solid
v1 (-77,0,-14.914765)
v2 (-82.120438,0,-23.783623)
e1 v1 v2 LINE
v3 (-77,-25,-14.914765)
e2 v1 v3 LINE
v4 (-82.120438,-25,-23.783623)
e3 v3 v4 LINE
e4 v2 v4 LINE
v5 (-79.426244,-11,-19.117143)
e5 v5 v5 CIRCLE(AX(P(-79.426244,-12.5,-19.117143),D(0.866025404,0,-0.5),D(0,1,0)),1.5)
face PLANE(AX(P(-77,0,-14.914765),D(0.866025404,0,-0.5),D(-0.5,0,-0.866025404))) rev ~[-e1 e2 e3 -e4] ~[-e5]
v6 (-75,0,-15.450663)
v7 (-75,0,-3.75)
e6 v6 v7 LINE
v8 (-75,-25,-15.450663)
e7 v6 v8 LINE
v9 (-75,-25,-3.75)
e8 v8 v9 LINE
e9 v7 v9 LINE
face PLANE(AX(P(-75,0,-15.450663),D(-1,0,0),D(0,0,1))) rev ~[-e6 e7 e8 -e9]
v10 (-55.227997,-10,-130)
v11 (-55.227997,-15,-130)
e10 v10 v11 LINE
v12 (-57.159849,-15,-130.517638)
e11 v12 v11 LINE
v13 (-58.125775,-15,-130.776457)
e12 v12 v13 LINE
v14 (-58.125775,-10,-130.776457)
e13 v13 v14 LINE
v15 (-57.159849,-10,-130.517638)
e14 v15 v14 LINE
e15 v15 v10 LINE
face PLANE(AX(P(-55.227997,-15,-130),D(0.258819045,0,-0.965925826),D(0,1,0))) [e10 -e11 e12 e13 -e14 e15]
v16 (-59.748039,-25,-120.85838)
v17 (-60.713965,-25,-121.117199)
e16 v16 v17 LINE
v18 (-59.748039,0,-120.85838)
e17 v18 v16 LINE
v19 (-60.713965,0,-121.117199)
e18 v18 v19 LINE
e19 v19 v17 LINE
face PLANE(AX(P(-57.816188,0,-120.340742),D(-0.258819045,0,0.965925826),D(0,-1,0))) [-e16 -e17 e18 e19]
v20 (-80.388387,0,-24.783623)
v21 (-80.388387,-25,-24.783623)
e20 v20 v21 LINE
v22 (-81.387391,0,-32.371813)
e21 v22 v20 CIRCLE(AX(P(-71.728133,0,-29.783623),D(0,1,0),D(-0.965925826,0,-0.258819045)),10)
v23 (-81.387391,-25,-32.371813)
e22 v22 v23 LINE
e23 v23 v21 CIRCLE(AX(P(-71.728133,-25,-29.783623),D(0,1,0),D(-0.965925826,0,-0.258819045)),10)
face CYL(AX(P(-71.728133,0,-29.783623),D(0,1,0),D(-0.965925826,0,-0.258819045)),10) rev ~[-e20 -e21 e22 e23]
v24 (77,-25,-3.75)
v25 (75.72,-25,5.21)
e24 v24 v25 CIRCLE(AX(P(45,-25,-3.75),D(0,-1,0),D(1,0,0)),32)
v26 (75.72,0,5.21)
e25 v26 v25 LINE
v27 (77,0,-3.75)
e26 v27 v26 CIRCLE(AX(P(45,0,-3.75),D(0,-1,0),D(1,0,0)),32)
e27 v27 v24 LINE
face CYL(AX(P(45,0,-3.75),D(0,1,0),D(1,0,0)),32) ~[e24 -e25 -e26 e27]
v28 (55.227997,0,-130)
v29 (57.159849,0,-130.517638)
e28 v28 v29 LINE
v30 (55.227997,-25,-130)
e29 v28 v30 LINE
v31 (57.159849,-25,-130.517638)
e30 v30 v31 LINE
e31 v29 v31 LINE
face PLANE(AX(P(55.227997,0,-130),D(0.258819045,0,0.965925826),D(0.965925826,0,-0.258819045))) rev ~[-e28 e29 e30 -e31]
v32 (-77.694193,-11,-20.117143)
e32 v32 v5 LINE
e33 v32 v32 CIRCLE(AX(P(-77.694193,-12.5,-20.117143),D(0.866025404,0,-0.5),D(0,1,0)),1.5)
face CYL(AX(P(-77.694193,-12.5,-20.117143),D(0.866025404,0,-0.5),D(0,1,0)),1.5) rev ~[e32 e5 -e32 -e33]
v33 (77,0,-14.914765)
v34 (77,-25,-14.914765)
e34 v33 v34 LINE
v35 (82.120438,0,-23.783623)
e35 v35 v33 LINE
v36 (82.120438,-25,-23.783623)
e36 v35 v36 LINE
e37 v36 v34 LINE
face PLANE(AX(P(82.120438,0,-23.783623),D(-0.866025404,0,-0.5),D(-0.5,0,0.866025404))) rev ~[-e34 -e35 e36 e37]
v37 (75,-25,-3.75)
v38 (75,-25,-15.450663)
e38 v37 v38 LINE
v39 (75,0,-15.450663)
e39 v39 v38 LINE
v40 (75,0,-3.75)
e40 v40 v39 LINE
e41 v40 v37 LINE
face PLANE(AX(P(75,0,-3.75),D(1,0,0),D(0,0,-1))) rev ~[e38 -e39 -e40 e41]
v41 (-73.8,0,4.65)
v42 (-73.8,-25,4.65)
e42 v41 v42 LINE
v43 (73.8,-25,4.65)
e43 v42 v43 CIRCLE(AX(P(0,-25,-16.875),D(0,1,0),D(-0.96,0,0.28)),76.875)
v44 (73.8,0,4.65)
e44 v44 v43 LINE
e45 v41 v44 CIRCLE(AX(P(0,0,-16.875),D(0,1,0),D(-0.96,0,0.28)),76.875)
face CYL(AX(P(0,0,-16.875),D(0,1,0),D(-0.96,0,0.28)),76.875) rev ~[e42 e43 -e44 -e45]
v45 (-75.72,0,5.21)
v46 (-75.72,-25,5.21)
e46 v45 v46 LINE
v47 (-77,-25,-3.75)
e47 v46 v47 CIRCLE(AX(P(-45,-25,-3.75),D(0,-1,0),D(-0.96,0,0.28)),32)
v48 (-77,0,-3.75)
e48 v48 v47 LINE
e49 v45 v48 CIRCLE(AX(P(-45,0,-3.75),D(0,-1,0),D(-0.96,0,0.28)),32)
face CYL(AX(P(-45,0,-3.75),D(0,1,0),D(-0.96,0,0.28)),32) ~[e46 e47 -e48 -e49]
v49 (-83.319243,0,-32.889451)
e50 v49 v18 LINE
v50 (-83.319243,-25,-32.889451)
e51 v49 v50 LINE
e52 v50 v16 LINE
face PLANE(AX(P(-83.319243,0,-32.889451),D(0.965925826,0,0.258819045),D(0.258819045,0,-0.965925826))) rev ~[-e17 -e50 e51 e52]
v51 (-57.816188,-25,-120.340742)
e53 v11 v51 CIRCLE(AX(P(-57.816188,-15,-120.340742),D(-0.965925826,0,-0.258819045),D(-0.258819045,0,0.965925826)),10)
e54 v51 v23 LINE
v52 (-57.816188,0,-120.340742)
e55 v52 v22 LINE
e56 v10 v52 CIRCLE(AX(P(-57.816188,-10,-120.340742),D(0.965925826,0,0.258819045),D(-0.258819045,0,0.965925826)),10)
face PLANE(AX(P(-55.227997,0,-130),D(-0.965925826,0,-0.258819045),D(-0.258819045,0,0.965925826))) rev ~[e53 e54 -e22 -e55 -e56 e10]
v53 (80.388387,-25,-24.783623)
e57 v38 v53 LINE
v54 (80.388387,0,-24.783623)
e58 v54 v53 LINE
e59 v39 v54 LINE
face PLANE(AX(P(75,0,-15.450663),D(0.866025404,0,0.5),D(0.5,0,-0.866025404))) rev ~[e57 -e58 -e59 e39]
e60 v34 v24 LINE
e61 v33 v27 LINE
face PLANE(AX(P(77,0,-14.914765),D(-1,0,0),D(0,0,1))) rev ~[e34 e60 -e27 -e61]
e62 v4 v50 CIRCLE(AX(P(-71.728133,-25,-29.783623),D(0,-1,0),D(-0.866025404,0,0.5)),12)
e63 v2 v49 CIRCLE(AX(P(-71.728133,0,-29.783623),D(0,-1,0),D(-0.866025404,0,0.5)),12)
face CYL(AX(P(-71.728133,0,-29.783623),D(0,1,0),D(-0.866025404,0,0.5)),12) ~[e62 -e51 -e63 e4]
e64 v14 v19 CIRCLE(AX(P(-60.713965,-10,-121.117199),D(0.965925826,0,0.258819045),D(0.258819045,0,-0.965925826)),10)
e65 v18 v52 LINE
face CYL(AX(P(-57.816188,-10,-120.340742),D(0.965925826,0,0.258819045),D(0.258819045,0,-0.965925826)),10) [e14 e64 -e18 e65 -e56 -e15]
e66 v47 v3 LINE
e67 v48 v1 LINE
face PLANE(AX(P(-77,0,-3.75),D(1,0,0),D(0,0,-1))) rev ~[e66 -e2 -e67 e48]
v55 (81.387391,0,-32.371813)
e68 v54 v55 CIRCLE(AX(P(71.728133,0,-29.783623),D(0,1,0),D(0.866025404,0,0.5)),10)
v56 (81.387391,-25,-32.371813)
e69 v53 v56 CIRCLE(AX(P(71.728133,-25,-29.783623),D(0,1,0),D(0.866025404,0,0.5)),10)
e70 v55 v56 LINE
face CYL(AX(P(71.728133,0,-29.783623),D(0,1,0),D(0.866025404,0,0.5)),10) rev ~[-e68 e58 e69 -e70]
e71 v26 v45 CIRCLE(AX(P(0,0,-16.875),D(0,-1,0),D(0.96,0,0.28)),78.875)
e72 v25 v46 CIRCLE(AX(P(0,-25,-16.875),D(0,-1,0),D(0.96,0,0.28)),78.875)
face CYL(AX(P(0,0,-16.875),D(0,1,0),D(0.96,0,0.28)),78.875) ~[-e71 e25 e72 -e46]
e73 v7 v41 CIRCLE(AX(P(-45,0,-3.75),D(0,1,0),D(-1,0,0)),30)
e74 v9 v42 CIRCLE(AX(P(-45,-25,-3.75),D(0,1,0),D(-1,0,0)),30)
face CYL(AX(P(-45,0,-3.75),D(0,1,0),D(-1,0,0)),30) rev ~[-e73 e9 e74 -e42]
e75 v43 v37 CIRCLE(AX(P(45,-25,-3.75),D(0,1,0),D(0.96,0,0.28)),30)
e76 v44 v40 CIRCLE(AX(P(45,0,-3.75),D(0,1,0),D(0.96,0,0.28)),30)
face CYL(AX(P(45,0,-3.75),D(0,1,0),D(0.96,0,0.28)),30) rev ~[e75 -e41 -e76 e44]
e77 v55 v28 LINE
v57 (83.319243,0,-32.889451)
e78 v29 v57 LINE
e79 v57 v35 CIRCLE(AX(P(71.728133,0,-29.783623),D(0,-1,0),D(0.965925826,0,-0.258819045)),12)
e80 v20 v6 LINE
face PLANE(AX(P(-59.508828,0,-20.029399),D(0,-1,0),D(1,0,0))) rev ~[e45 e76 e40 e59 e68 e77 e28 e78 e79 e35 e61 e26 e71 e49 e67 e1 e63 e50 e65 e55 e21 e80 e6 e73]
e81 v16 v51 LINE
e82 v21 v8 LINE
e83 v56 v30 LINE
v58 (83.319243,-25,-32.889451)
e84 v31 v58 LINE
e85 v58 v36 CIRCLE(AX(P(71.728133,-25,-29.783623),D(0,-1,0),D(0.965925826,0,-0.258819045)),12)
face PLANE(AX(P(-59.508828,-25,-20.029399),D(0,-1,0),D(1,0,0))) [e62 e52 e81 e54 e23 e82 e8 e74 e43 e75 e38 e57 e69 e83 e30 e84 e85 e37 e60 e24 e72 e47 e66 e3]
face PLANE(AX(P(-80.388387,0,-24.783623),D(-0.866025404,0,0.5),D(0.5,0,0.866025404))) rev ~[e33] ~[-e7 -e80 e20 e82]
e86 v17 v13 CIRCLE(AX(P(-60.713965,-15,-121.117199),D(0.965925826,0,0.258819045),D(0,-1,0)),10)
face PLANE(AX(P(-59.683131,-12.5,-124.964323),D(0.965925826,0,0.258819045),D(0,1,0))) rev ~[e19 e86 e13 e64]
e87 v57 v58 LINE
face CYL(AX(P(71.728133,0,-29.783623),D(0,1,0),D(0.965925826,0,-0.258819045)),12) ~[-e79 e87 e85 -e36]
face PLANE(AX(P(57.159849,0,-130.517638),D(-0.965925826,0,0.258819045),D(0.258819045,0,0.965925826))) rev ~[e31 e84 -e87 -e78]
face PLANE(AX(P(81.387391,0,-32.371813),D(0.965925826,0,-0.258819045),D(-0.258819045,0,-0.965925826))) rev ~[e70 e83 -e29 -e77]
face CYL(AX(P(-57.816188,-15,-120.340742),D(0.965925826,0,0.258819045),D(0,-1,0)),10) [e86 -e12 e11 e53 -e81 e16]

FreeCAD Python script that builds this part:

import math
import FreeCAD as App
import Part
import Sketcher

V = App.Vector
Q = App.Units.Quantity


def edges_at(feature, points):
    """Names of the edges that pass closest to the given points."""
    edges = feature.Shape.Edges
    near = lambda p: min(range(len(edges)), key=lambda i: edges[i].distToShape(Part.Vertex(*p))[0])
    return sorted({f"Edge{near(p) + 1}" for p in points})

doc = App.newDocument("Part")
params = doc.addObject("Spreadsheet::Sheet", "Params")
for row, (alias, value) in enumerate([
    ("sketch1_radius", "30 mm"),
    ("sketch1_radius2", "10 mm"),
    ("sketch1_radius3", "12 mm"),
    ("sketch1_radius4", "32 mm"),
    ("pad1_length", "25 mm"),
    ("fillet_radius", "10 mm"),
    ("sketch2_diameter", "3 mm"),
    ("pocket1_length", "25 mm"),
    ("sketch3_radius", "10 mm"),
    ("sketch3_width", "25 mm"),
    ("pad2_length", "3 mm"),
], start=1):
    params.set(f"A{row}", alias)
    params.set(f"B{row}", "=" + value)
    params.setAlias(f"B{row}", alias)

body = doc.addObject("PartDesign::Body", "Body")

sketch1 = body.newObject("Sketcher::SketchObject", "Sketch")
sketch1.AttachmentSupport = (doc.getObject("XZ_Plane"), [""])
sketch1.MapMode = "FlatFace"
sketch1.addGeometry([
    Part.ArcOfCircle(Part.Circle(V(0, -16.9, 0), V(0, 0, 1), 76.9), math.radians(16), math.radians(164)),
    Part.ArcOfCircle(Part.Circle(V(45, -3.8, 0), V(0, 0, 1), 30), math.radians(0), math.radians(16.26)),
    Part.LineSegment(V(75, -3.8, 0), V(75, -15.5, 0)),
    Part.LineSegment(V(75, -15.5, 0), V(80.4, -24.8, 0)),
    Part.ArcOfCircle(Part.Circle(V(71.7, -29.8, 0), V(0, 0, 1), 10), math.radians(-15), math.radians(30)),
    Part.LineSegment(V(81.4, -32.4, 0), V(55.2, -130, 0)),
    Part.LineSegment(V(55.2, -130, 0), V(57.2, -130.5, 0)),
    Part.LineSegment(V(57.2, -130.5, 0), V(83.3, -32.9, 0)),
    Part.ArcOfCircle(Part.Circle(V(71.7, -29.8, 0), V(0, 0, 1), 12), math.radians(-15), math.radians(30)),
    Part.LineSegment(V(82.1, -23.8, 0), V(77, -14.9, 0)),
    Part.LineSegment(V(77, -14.9, 0), V(77, -3.8, 0)),
    Part.ArcOfCircle(Part.Circle(V(45, -3.7, 0), V(0, 0, 1), 32), math.radians(0), math.radians(16.26)),
    Part.ArcOfCircle(Part.Circle(V(0, -16.9, 0), V(0, 0, 1), 78.9), math.radians(16), math.radians(164)),
    Part.ArcOfCircle(Part.Circle(V(-45, -3.7, 0), V(0, 0, 1), 32), math.radians(163.74), math.radians(180)),
    Part.LineSegment(V(-77, -3.8, 0), V(-77, -14.9, 0)),
    Part.LineSegment(V(-77, -14.9, 0), V(-82.1, -23.8, 0)),
    Part.ArcOfCircle(Part.Circle(V(-71.7, -29.8, 0), V(0, 0, 1), 12), math.radians(150), math.radians(195)),
    Part.LineSegment(V(-83.3, -32.9, 0), V(-57.2, -130.5, 0)),
    Part.LineSegment(V(-57.2, -130.5, 0), V(-55.2, -130, 0)),
    Part.LineSegment(V(-55.2, -130, 0), V(-81.4, -32.4, 0)),
    Part.ArcOfCircle(Part.Circle(V(-71.7, -29.8, 0), V(0, 0, 1), 10), math.radians(150), math.radians(195)),
    Part.LineSegment(V(-80.4, -24.8, 0), V(-75, -15.5, 0)),
    Part.LineSegment(V(-75, -15.5, 0), V(-75, -3.8, 0)),
    Part.ArcOfCircle(Part.Circle(V(-45, -3.8, 0), V(0, 0, 1), 30), math.radians(163.74), math.radians(180)),
], False)
sketch1.addConstraint([
    Sketcher.Constraint("Tangent", 0, 1, 1, 2),
    Sketcher.Constraint("Tangent", 1, 1, 2, 1),
    Sketcher.Constraint("Coincident", 2, 2, 3, 1),
    Sketcher.Constraint("Tangent", 3, 2, 4, 2),
    Sketcher.Constraint("Tangent", 4, 1, 5, 1),
    Sketcher.Constraint("Coincident", 5, 2, 6, 1),
    Sketcher.Constraint("Coincident", 6, 2, 7, 1),
    Sketcher.Constraint("Tangent", 7, 2, 8, 1),
    Sketcher.Constraint("Tangent", 8, 2, 9, 1),
    Sketcher.Constraint("Coincident", 9, 2, 10, 1),
    Sketcher.Constraint("Tangent", 10, 2, 11, 1),
    Sketcher.Constraint("Tangent", 11, 2, 12, 1),
    Sketcher.Constraint("Tangent", 12, 2, 13, 1),
    Sketcher.Constraint("Tangent", 13, 2, 14, 1),
    Sketcher.Constraint("Coincident", 14, 2, 15, 1),
    Sketcher.Constraint("Tangent", 15, 2, 16, 1),
    Sketcher.Constraint("Tangent", 16, 2, 17, 1),
    Sketcher.Constraint("Coincident", 17, 2, 18, 1),
    Sketcher.Constraint("Coincident", 18, 2, 19, 1),
    Sketcher.Constraint("Tangent", 19, 2, 20, 2),
    Sketcher.Constraint("Tangent", 20, 1, 21, 1),
    Sketcher.Constraint("Coincident", 21, 2, 22, 1),
    Sketcher.Constraint("Tangent", 22, 2, 23, 2),
    Sketcher.Constraint("Tangent", 23, 1, 0, 2),
    Sketcher.Constraint("Vertical", 2),
    Sketcher.Constraint("Vertical", 10),
    Sketcher.Constraint("Vertical", 14),
    Sketcher.Constraint("Vertical", 22),
    Sketcher.Constraint("Coincident", 8, 3, 4, 3),
    Sketcher.Constraint("Coincident", 11, 3, 1, 3),
    Sketcher.Constraint("Coincident", 12, 3, 0, 3),
    Sketcher.Constraint("Coincident", 20, 3, 16, 3),
    Sketcher.Constraint("Coincident", 23, 3, 13, 3),
    Sketcher.Constraint("Equal", 11, 13),
    Sketcher.Constraint("Equal", 8, 16),
    Sketcher.Constraint("Equal", 4, 20),
    Sketcher.Constraint("Symmetric", 1, 3, 13, 3, -2),
    Sketcher.Constraint("Symmetric", 4, 3, 16, 3, -2),
    Sketcher.Constraint("Symmetric", 6, 2, 17, 2, -2),
    Sketcher.Constraint("Symmetric", 5, 2, 18, 2, -2),
    Sketcher.Constraint("Perpendicular", 5, 6),
    Sketcher.Constraint("Perpendicular", 6, 7),
    Sketcher.Constraint("Parallel", 3, 9),
    Sketcher.Constraint("Parallel", 15, 21),
    Sketcher.Constraint("Horizontal", 9, 2, 14, 2),
    Sketcher.Constraint("Radius", 1, Q("30 mm")),
    Sketcher.Constraint("Radius", 4, Q("10 mm")),
    Sketcher.Constraint("Radius", 8, Q("12 mm")),
    Sketcher.Constraint("Radius", 11, Q("32 mm")),
    Sketcher.Constraint("Angle", 3, Q("-60 deg")),
    Sketcher.Constraint("Angle", 5, Q("-105 deg")),
    Sketcher.Constraint("DistanceX", -1, 1, 1, 3, Q("45 mm")),
    Sketcher.Constraint("DistanceY", 5, 2, -1, 1, Q("130 mm")),
    Sketcher.Constraint("Radius", 0, Q("76.875 mm")),
    Sketcher.Constraint("DistanceY", 1, 3, -1, 1, Q("3.75 mm")),
    Sketcher.Constraint("DistanceY", 2, 2, 2, 1, Q("11.700663 mm")),
    Sketcher.Constraint("DistanceX", -1, 1, 4, 1, Q("81.387391 mm")),
])
sketch1.setExpression("Constraints[45]", "Params.sketch1_radius")
sketch1.setExpression("Constraints[46]", "Params.sketch1_radius2")
sketch1.setExpression("Constraints[47]", "Params.sketch1_radius3")
sketch1.setExpression("Constraints[48]", "Params.sketch1_radius4")
pad1 = body.newObject("PartDesign::Pad", "Pad")
pad1.Profile = sketch1
pad1.setExpression("Length", "Params.pad1_length")
doc.recompute()

fillet = body.newObject("PartDesign::Fillet", "Fillet")
fillet.Base = (pad1, edges_at(pad1, [(-56.194, -25, -130.259), (-56.194, 0, -130.259)]))
fillet.setExpression("Radius", "Params.fillet_radius")

sketch2 = body.newObject("Sketcher::SketchObject", "Sketch001")
sketch2.Placement = App.Placement(V(-49.559667, 0, 28.613287), App.Rotation(V(0, 1, 0), V(0.5, 0, 0.866025404), V(0.866025404, 0, -0.5), "ZXY"))
sketch2.addGeometry(Part.Circle(V(-12.5, -56.3, 0), V(0, 0, 1), 1.5), False)
sketch2.addConstraint([
    Sketcher.Constraint("Diameter", 0, Q("3 mm")),
    Sketcher.Constraint("DistanceX", 0, 3, -1, 1, Q("12.5 mm")),
    Sketcher.Constraint("DistanceY", 0, 3, -1, 1, Q("56.269053 mm")),
])
sketch2.setExpression("Constraints[0]", "Params.sketch2_diameter")
pocket1 = body.newObject("PartDesign::Pocket", "Pocket")
pocket1.Profile = sketch2
pocket1.setExpression("Length", "Params.pocket1_length")

sketch3 = body.newObject("Sketcher::SketchObject", "Sketch002")
sketch3.Placement = App.Placement(V(-84.028423, 0, -22.515348), App.Rotation(V(0, 1, 0), V(-0.258819045, 0, 0.965925826), V(0.965925826, 0, 0.258819045), "ZXY"))
sketch3.addGeometry([
    Part.LineSegment(V(0, -101, 0), V(-25, -101, 0)),
    Part.ArcOfCircle(Part.Circle(V(-15, -101, 0), V(0, 0, 1), 10), math.radians(180), math.radians(270)),
    Part.LineSegment(V(-15, -111, 0), V(-10, -111, 0)),
    Part.ArcOfCircle(Part.Circle(V(-10, -101, 0), V(0, 0, 1), 10), math.radians(-90), math.radians(0)),
], False)
sketch3.addConstraint([
    Sketcher.Constraint("Coincident", 0, 2, 1, 1),
    Sketcher.Constraint("Tangent", 1, 2, 2, 1),
    Sketcher.Constraint("Tangent", 2, 2, 3, 1),
    Sketcher.Constraint("Coincident", 3, 2, 0, 1),
    Sketcher.Constraint("Horizontal", 0),
    Sketcher.Constraint("Horizontal", 2),
    Sketcher.Constraint("Equal", 1, 3),
    Sketcher.Constraint("PointOnObject", 3, 2, -2),
    Sketcher.Constraint("Horizontal", 3, 3, 0, 2),
    Sketcher.Constraint("Radius", 1, Q("10 mm")),
    Sketcher.Constraint("DistanceX", 0, 2, 0, 1, Q("25 mm")),
    Sketcher.Constraint("DistanceY", 1, 3, -1, 1, Q("101.2763 mm")),
])
sketch3.setExpression("Constraints[9]", "Params.sketch3_radius")
sketch3.setExpression("Constraints[10]", "Params.sketch3_width")
pad2 = body.newObject("PartDesign::Pad", "Pad001")
pad2.Profile = sketch3
pad2.setExpression("Length", "Params.pad2_length")
pad2.Reversed = True

doc.recompute()
